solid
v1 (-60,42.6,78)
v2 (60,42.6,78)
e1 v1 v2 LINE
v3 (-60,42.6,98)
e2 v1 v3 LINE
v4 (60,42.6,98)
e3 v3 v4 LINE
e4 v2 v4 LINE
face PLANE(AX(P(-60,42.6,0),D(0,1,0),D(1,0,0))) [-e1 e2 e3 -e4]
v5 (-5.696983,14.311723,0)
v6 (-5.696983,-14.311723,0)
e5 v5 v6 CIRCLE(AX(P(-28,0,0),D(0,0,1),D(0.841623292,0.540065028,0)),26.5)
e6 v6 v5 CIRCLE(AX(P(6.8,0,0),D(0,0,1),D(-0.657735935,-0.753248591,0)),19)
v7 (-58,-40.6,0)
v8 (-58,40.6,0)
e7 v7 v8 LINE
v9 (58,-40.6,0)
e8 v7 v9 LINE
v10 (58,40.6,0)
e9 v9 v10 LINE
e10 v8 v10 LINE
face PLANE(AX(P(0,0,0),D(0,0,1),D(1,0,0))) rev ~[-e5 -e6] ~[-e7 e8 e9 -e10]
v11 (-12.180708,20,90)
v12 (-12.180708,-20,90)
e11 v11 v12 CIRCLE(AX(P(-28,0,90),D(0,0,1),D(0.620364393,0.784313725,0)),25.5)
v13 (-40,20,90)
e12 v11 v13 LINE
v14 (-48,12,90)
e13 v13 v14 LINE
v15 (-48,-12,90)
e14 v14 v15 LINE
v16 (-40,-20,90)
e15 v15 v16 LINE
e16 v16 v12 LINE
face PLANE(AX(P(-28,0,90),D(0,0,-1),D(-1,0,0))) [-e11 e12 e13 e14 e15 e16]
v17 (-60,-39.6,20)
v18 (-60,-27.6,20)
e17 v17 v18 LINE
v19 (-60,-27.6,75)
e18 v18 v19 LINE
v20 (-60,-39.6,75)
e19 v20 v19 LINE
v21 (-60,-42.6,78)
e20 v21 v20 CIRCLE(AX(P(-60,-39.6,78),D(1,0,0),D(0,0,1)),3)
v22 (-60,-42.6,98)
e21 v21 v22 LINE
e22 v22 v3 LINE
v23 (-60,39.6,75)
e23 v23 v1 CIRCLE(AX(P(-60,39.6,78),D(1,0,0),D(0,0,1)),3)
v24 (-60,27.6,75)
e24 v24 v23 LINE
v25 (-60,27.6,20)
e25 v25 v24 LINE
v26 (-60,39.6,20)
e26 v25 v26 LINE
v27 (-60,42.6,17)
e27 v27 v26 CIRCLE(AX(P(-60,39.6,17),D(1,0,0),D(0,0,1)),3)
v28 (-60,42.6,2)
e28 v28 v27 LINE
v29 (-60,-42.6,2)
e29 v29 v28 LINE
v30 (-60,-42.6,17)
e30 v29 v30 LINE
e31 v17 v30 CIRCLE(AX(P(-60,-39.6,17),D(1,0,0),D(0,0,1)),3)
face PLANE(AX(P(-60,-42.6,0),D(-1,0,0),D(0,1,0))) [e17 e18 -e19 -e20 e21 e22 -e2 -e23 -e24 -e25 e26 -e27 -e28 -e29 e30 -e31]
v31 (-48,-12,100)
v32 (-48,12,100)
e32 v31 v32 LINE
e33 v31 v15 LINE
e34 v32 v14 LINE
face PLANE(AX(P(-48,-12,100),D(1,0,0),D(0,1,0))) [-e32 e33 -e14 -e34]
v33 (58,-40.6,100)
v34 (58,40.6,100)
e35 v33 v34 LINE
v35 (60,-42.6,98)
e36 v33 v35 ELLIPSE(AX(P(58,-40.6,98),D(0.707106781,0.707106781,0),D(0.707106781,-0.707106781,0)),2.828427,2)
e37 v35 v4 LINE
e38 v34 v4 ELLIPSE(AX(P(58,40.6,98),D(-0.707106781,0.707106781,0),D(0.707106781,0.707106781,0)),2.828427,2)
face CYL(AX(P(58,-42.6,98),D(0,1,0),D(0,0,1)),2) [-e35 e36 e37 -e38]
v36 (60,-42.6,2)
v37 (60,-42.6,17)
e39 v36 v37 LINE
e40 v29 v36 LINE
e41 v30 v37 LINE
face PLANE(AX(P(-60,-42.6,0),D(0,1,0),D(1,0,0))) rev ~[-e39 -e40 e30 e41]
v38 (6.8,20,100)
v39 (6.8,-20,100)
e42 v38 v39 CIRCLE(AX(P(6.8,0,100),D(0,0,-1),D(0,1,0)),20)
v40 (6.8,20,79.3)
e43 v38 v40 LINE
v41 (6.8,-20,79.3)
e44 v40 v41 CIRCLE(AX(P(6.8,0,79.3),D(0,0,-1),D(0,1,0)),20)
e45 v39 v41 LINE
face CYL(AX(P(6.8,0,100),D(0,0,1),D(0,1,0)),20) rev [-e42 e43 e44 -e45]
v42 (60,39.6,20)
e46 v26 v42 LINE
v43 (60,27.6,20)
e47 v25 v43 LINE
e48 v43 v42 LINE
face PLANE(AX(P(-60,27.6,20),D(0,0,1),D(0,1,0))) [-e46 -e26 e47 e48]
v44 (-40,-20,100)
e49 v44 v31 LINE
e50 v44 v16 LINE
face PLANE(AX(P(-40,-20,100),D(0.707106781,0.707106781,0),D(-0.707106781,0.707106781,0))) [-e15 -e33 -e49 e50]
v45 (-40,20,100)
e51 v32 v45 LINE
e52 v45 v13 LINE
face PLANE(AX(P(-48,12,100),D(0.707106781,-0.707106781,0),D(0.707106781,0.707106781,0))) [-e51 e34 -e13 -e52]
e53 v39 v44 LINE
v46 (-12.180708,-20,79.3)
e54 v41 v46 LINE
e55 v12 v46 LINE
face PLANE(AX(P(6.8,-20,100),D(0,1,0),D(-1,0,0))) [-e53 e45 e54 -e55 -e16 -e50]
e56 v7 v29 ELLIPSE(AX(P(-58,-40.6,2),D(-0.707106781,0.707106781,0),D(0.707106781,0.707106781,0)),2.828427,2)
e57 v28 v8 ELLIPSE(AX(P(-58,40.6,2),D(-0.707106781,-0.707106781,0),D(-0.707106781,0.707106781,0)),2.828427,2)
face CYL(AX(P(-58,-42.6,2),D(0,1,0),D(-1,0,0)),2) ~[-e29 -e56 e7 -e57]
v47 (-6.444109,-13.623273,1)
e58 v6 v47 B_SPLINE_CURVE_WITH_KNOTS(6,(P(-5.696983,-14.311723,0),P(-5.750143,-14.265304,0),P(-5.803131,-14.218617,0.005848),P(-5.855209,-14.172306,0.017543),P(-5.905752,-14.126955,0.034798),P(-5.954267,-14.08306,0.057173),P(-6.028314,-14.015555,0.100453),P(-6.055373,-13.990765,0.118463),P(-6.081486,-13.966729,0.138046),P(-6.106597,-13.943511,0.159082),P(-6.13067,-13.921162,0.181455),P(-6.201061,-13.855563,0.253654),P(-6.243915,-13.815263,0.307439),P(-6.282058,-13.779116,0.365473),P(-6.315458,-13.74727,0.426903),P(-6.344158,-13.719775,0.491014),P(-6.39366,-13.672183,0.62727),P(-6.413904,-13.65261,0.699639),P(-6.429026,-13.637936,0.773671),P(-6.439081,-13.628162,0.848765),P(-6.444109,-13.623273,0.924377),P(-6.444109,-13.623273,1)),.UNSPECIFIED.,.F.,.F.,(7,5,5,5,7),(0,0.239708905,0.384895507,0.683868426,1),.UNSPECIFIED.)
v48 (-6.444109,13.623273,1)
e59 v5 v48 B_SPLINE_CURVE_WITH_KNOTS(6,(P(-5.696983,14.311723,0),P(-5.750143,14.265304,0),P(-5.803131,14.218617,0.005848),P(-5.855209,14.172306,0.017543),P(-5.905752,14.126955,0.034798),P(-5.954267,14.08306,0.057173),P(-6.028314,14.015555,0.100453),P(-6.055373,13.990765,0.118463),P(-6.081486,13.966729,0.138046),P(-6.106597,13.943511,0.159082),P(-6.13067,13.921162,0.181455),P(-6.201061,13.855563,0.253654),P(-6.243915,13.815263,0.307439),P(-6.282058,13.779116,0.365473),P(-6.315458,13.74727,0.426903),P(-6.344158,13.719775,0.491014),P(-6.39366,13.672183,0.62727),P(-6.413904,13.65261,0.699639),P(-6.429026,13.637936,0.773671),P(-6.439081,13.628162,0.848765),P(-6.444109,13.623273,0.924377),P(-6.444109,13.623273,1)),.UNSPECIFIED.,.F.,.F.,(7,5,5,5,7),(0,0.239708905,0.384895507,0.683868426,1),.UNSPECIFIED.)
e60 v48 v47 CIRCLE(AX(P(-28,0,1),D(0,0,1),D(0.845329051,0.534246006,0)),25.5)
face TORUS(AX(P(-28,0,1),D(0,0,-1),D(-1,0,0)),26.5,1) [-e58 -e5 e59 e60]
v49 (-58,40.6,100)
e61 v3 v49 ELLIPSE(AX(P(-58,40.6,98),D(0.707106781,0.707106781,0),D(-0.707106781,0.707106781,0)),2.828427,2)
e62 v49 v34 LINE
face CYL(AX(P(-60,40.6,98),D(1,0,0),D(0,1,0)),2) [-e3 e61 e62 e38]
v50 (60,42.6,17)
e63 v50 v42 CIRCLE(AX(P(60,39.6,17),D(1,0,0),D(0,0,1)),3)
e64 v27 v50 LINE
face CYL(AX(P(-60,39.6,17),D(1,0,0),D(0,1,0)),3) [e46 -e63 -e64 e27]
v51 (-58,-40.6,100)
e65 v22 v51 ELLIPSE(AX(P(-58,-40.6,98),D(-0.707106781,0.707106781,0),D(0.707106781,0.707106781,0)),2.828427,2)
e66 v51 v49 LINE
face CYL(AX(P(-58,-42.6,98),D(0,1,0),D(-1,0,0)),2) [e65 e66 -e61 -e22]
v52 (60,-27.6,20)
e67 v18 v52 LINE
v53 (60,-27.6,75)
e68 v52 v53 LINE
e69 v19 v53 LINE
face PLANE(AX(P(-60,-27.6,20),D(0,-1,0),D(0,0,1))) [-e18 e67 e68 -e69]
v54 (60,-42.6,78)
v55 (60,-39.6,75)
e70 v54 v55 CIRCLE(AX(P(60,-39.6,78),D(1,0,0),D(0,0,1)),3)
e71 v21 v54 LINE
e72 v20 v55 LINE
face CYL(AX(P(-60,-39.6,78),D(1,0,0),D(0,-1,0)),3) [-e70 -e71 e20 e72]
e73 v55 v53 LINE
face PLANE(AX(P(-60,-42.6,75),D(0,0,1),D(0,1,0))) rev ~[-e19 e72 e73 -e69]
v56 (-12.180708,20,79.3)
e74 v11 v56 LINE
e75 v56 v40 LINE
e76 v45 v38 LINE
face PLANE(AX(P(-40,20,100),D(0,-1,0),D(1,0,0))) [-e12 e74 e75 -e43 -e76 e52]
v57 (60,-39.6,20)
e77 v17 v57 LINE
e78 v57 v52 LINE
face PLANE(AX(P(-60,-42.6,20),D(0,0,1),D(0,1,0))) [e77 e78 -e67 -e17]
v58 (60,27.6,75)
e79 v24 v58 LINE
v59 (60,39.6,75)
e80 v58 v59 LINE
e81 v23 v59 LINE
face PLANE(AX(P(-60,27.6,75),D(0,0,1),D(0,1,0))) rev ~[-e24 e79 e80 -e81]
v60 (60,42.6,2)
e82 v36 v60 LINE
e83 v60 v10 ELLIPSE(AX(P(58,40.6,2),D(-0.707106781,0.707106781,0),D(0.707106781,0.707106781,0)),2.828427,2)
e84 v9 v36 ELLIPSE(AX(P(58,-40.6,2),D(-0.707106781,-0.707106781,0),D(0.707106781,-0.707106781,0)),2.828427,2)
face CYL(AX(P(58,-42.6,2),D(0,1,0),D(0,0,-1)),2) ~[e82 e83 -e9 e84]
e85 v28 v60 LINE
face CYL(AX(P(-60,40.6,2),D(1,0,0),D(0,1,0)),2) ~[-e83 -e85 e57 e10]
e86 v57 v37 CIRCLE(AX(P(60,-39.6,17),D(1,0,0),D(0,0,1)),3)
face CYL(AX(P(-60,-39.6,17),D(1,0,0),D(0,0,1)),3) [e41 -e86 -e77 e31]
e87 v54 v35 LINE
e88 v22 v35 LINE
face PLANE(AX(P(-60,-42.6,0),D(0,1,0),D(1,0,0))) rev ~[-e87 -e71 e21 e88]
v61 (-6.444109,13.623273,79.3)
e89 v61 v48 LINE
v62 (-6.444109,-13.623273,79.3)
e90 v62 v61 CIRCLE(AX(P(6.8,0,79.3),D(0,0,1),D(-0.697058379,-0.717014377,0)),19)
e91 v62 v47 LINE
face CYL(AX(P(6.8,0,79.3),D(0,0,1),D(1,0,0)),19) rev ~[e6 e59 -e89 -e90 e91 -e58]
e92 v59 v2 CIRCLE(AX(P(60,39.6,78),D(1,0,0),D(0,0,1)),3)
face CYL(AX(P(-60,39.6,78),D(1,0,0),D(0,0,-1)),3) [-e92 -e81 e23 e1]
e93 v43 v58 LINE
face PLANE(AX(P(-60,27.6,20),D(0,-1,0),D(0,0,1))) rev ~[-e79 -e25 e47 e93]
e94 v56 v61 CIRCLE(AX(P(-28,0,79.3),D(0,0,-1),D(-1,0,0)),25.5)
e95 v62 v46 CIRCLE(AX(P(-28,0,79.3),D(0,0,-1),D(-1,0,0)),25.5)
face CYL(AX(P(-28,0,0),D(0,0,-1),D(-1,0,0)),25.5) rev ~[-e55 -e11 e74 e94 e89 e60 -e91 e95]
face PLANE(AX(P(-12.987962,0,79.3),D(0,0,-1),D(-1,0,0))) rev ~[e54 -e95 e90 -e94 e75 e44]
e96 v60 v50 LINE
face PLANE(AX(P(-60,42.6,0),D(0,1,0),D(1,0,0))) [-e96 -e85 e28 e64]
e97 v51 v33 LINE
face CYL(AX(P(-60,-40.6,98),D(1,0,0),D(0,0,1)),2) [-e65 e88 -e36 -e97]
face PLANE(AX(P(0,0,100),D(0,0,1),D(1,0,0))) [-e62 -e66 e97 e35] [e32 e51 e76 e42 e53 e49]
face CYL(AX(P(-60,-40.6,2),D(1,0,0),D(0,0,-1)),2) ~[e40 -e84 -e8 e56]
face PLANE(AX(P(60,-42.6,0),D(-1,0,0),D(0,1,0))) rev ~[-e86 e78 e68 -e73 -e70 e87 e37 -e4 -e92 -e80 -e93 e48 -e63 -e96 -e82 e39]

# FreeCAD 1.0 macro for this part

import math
import FreeCAD as App
import Part
import Sketcher
from FreeCAD import Vector
Q = App.Units.Quantity


def edges_at(feature, points):
    """Names of the edges that pass closest to the given points."""
    edges = feature.Shape.Edges
    near = lambda p: min(range(len(edges)), key=lambda i: edges[i].distToShape(Part.Vertex(*p))[0])
    return sorted({f"Edge{near(p) + 1}" for p in points})

doc = App.newDocument("Part")
body = doc.addObject("PartDesign::Body", "Body")

sketch1 = body.newObject("Sketcher::SketchObject", "Sketch")
sketch1.AttachmentSupport = (doc.getObject("XY_Plane"), [""])
sketch1.MapMode = "FlatFace"
sketch1.addGeometry(Part.LineSegment(Vector(-60, 43, 0), Vector(-60, -43, 0)), False)
sketch1.addGeometry(Part.LineSegment(Vector(-60, -43, 0), Vector(60, -43, 0)), False)
sketch1.addGeometry(Part.LineSegment(Vector(60, -43, 0), Vector(60, 43, 0)), False)
sketch1.addGeometry(Part.LineSegment(Vector(60, 43, 0), Vector(-60, 43, 0)), False)
sketch1.addConstraint(Sketcher.Constraint("Coincident", 0, 2, 1, 1))
sketch1.addConstraint(Sketcher.Constraint("Coincident", 1, 2, 2, 1))
sketch1.addConstraint(Sketcher.Constraint("Coincident", 2, 2, 3, 1))
sketch1.addConstraint(Sketcher.Constraint("Coincident", 3, 2, 0, 1))
sketch1.addConstraint(Sketcher.Constraint("Vertical", 0))
sketch1.addConstraint(Sketcher.Constraint("Horizontal", 1))
sketch1.addConstraint(Sketcher.Constraint("Vertical", 2))
sketch1.addConstraint(Sketcher.Constraint("Horizontal", 3))
sketch1.addConstraint(Sketcher.Constraint("Symmetric", 0, 2, 2, 2, -1, 1))
sketch1.addConstraint(Sketcher.Constraint("DistanceX", 1, 1, 1, 2, Q("120 mm")))
sketch1.addConstraint(Sketcher.Constraint("DistanceY", 0, 2, 0, 1, Q("85.2 mm")))
pad1 = body.newObject("PartDesign::Pad", "Pad")
pad1.Profile = sketch1
pad1.Length = 100

sketch2 = body.newObject("Sketcher::SketchObject", "Sketch001")
sketch2.AttachmentSupport = (doc.getObject("YZ_Plane"), [""])
sketch2.MapMode = "FlatFace"
sketch2.AttachmentOffset = App.Placement(Vector(0, 0, -60), App.Rotation())
sketch2.addGeometry(Part.LineSegment(Vector(43, 20, 0), Vector(28, 20, 0)), False)
sketch2.addGeometry(Part.LineSegment(Vector(28, 20, 0), Vector(28, 75, 0)), False)
sketch2.addGeometry(Part.LineSegment(Vector(28, 75, 0), Vector(43, 75, 0)), False)
sketch2.addGeometry(Part.LineSegment(Vector(43, 75, 0), Vector(43, 20, 0)), False)
sketch2.addGeometry(Part.LineSegment(Vector(-28, 20, 0), Vector(-43, 20, 0)), False)
sketch2.addGeometry(Part.LineSegment(Vector(-43, 20, 0), Vector(-43, 75, 0)), False)
sketch2.addGeometry(Part.LineSegment(Vector(-43, 75, 0), Vector(-28, 75, 0)), False)
sketch2.addGeometry(Part.LineSegment(Vector(-28, 75, 0), Vector(-28, 20, 0)), False)
sketch2.addConstraint(Sketcher.Constraint("Coincident", 0, 2, 1, 1))
sketch2.addConstraint(Sketcher.Constraint("Coincident", 1, 2, 2, 1))
sketch2.addConstraint(Sketcher.Constraint("Coincident", 2, 2, 3, 1))
sketch2.addConstraint(Sketcher.Constraint("Coincident", 3, 2, 0, 1))
sketch2.addConstraint(Sketcher.Constraint("Coincident", 4, 2, 5, 1))
sketch2.addConstraint(Sketcher.Constraint("Coincident", 5, 2, 6, 1))
sketch2.addConstraint(Sketcher.Constraint("Coincident", 6, 2, 7, 1))
sketch2.addConstraint(Sketcher.Constraint("Coincident", 7, 2, 4, 1))
sketch2.addConstraint(Sketcher.Constraint("Horizontal", 0))
sketch2.addConstraint(Sketcher.Constraint("Vertical", 1))
sketch2.addConstraint(Sketcher.Constraint("Horizontal", 2))
sketch2.addConstraint(Sketcher.Constraint("Vertical", 3))
sketch2.addConstraint(Sketcher.Constraint("Horizontal", 4))
sketch2.addConstraint(Sketcher.Constraint("Vertical", 5))
sketch2.addConstraint(Sketcher.Constraint("Horizontal", 6))
sketch2.addConstraint(Sketcher.Constraint("Vertical", 7))
sketch2.addConstraint(Sketcher.Constraint("Symmetric", 3, 2, 4, 2, -2))
sketch2.addConstraint(Sketcher.Constraint("Symmetric", 1, 2, 6, 2, -2))
sketch2.addConstraint(Sketcher.Constraint("DistanceX", 0, 2, 0, 1, Q("15 mm")))
sketch2.addConstraint(Sketcher.Constraint("DistanceY", 1, 1, 1, 2, Q("55 mm")))
sketch2.addConstraint(Sketcher.Constraint("DistanceY", -1, 1, 0, 2, Q("20 mm")))
sketch2.addConstraint(Sketcher.Constraint("DistanceX", -1, 1, 0, 2, Q("27.6 mm")))
pocket1 = body.newObject("PartDesign::Pocket", "Pocket")
pocket1.Profile = sketch2
pocket1.Type = "ThroughAll"
pocket1.Reversed = True
doc.recompute()

fillet = body.newObject("PartDesign::Fillet", "Fillet")
fillet.Base = (pocket1, edges_at(pocket1, [
    (0, 42.6, 75),
    (0, 42.6, 20),
    (0, -42.6, 20),
    (0, -42.6, 75),
]))
fillet.Radius = 3
doc.recompute()

fillet2 = body.newObject("PartDesign::Fillet", "Fillet001")
fillet2.Base = (fillet, edges_at(fillet, [
    (0, -42.6, 0),
    (-60, 0, 0),
    (0, 42.6, 0),
    (60, 0, 0),
]))
fillet2.Radius = 2
doc.recompute()

fillet3 = body.newObject("PartDesign::Fillet", "Fillet002")
fillet3.Base = (fillet2, edges_at(fillet2, [
    (-60, 0, 100),
    (0, -42.6, 100),
    (60, 0, 100),
    (0, 42.6, 100),
]))
fillet3.Radius = 2

sketch3 = body.newObject("Sketcher::SketchObject", "Sketch002")
sketch3.AttachmentSupport = (doc.getObject("XY_Plane"), [""])
sketch3.MapMode = "FlatFace"
sketch3.addGeometry(Part.Circle(Vector(-28, 0, 0), Vector(0, 0, 1), 26), False)
sketch3.addConstraint(Sketcher.Constraint("PointOnObject", 0, 3, -1))
sketch3.addConstraint(Sketcher.Constraint("Diameter", 0, Q("51 mm")))
sketch3.addConstraint(Sketcher.Constraint("DistanceX", 0, 3, -1, 1, Q("28 mm")))
pocket2 = body.newObject("PartDesign::Pocket", "Pocket001")
pocket2.Profile = sketch3
pocket2.Length = 90
pocket2.Reversed = True
doc.recompute()

fillet4 = body.newObject("PartDesign::Fillet", "Fillet003")
fillet4.Base = (pocket2, edges_at(pocket2, [(-2.5, 0, 0)]))
fillet4.Radius = 1

sketch4 = body.newObject("Sketcher::SketchObject", "Sketch003")
sketch4.AttachmentSupport = (doc.getObject("XY_Plane"), [""])
sketch4.MapMode = "FlatFace"
sketch4.AttachmentOffset = App.Placement(Vector(0, 0, 100), App.Rotation())
sketch4.addGeometry(Part.LineSegment(Vector(-40, 20, 0), Vector(-48, 12, 0)), False)
sketch4.addGeometry(Part.LineSegment(Vector(-48, 12, 0), Vector(-48, -12, 0)), False)
sketch4.addGeometry(Part.LineSegment(Vector(-48, -12, 0), Vector(-40, -20, 0)), False)
sketch4.addGeometry(Part.LineSegment(Vector(-40, -20, 0), Vector(7, -20, 0)), False)
sketch4.addGeometry(Part.ArcOfCircle(Part.Circle(Vector(7, 0, 0), Vector(0, 0, 1), 20), math.radians(-90), math.radians(90)), False)
sketch4.addGeometry(Part.LineSegment(Vector(7, 20, 0), Vector(-40, 20, 0)), False)
sketch4.addConstraint(Sketcher.Constraint("Coincident", 0, 2, 1, 1))
sketch4.addConstraint(Sketcher.Constraint("Coincident", 1, 2, 2, 1))
sketch4.addConstraint(Sketcher.Constraint("Coincident", 2, 2, 3, 1))
sketch4.addConstraint(Sketcher.Constraint("Tangent", 3, 2, 4, 1))
sketch4.addConstraint(Sketcher.Constraint("Tangent", 4, 2, 5, 1))
sketch4.addConstraint(Sketcher.Constraint("Coincident", 5, 2, 0, 1))
sketch4.addConstraint(Sketcher.Constraint("Vertical", 1))
sketch4.addConstraint(Sketcher.Constraint("Horizontal", 3))
sketch4.addConstraint(Sketcher.Constraint("Horizontal", 5))
sketch4.addConstraint(Sketcher.Constraint("Symmetric", 2, 2, 5, 2, -1))
sketch4.addConstraint(Sketcher.Constraint("Perpendicular", 0, 2))
sketch4.addConstraint(Sketcher.Constraint("Equal", 0, 2))
sketch4.addConstraint(Sketcher.Constraint("Radius", 4, Q("20 mm")))
sketch4.addConstraint(Sketcher.Constraint("DistanceY", 1, 2, 1, 1, Q("24 mm")))
sketch4.addConstraint(Sketcher.Constraint("DistanceX", 3, 1, 3, 2, Q("46.8 mm")))
sketch4.addConstraint(Sketcher.Constraint("DistanceX", 0, 2, -1, 1, Q("48 mm")))
pocket3 = body.newObject("PartDesign::Pocket", "Pocket002")
pocket3.Profile = sketch4
pocket3.Length = 20.7

sketch5 = body.newObject("Sketcher::SketchObject", "Sketch004")
sketch5.AttachmentSupport = (doc.getObject("XY_Plane"), [""])
sketch5.MapMode = "FlatFace"
sketch5.AttachmentOffset = App.Placement(Vector(0, 0, 79.3), App.Rotation())
sketch5.addGeometry(Part.Circle(Vector(7, 0, 0), Vector(0, 0, 1), 19), False)
sketch5.addConstraint(Sketcher.Constraint("PointOnObject", 0, 3, -1))
sketch5.addConstraint(Sketcher.Constraint("Diameter", 0, Q("38 mm")))
sketch5.addConstraint(Sketcher.Constraint("DistanceX", -1, 1, 0, 3, Q("6.8 mm")))
pocket4 = body.newObject("PartDesign::Pocket", "Pocket003")
pocket4.Profile = sketch5
pocket4.Length = 85

doc.recompute()
